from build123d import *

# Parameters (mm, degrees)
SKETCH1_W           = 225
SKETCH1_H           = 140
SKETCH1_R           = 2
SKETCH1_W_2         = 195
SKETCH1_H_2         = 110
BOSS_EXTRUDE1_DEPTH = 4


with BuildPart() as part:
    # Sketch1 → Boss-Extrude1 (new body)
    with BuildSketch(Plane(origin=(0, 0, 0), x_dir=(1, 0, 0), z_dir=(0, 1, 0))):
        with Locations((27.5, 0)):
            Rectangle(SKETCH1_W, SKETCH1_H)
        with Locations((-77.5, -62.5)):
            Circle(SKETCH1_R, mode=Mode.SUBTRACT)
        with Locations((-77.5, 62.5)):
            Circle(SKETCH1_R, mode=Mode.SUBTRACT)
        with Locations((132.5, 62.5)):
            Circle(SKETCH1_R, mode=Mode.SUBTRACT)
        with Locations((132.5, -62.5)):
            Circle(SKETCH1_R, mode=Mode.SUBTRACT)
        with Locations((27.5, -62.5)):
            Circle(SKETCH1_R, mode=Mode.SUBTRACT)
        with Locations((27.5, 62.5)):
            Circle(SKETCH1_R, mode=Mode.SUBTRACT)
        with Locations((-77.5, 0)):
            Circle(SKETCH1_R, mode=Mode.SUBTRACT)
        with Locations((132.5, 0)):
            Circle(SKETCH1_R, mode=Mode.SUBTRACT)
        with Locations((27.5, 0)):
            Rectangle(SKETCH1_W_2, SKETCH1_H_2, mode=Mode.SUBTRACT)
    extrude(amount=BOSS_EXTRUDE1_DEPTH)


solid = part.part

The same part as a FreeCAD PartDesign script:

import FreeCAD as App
import Part
import Sketcher
Q = App.Units.Quantity


def add_polygon(sketch, points):
    """Adds a closed chain of lines whose ends are joined by coincident constraints."""
    first, n = sketch.GeometryCount, len(points)
    for a, b in zip(points, points[1:] + points[:1]):
        sketch.addGeometry(Part.LineSegment(App.Vector(*a, 0), App.Vector(*b, 0)), False)
    for i in range(n):
        sketch.addConstraint(Sketcher.Constraint("Coincident", first + i, 2, first + (i + 1) % n, 1))

doc = App.newDocument("Part")
params = doc.addObject("Spreadsheet::Sheet", "Params")
for row, (alias, value) in enumerate([
    ("sketch1_diameter", "4 mm"),
    ("sketch1_width", "225 mm"),
    ("sketch1_width2", "195 mm"),
    ("sketch1_height", "140 mm"),
    ("sketch1_height2", "110 mm"),
    ("pad1_length", "4 mm"),
], start=1):
    params.set(f"A{row}", alias)
    params.set(f"B{row}", "=" + value)
    params.setAlias(f"B{row}", alias)

body = doc.addObject("PartDesign::Body", "Body")

sketch1 = body.newObject("Sketcher::SketchObject", "Sketch")
sketch1.AttachmentSupport = (doc.getObject("XZ_Plane"), [""])
sketch1.MapMode = "FlatFace"
add_polygon(sketch1, [(-85, -70), (-85, 70), (140, 70), (140, -70)])
sketch1.addGeometry(Part.Circle(App.Vector(-77.5, 62.5, 0), App.Vector(0, 0, 1), 2), False)
sketch1.addGeometry(Part.Circle(App.Vector(27.5, 62.5, 0), App.Vector(0, 0, 1), 2), False)
sketch1.addGeometry(Part.Circle(App.Vector(132.5, 62.5, 0), App.Vector(0, 0, 1), 2), False)
sketch1.addGeometry(Part.Circle(App.Vector(-77.5, 0, 0), App.Vector(0, 0, 1), 2), False)
add_polygon(sketch1, [(125, 55), (-70, 55), (-70, -55), (125, -55)])
sketch1.addGeometry(Part.Circle(App.Vector(-77.5, -62.5, 0), App.Vector(0, 0, 1), 2), False)
sketch1.addGeometry(Part.Circle(App.Vector(27.5, -62.5, 0), App.Vector(0, 0, 1), 2), False)
sketch1.addGeometry(Part.Circle(App.Vector(132.5, 0, 0), App.Vector(0, 0, 1), 2), False)
sketch1.addGeometry(Part.Circle(App.Vector(132.5, -62.5, 0), App.Vector(0, 0, 1), 2), False)
sketch1.addConstraint(Sketcher.Constraint("Vertical", 0))
sketch1.addConstraint(Sketcher.Constraint("Horizontal", 1))
sketch1.addConstraint(Sketcher.Constraint("Vertical", 2))
sketch1.addConstraint(Sketcher.Constraint("Horizontal", 3))
sketch1.addConstraint(Sketcher.Constraint("Horizontal", 8))
sketch1.addConstraint(Sketcher.Constraint("Vertical", 9))
sketch1.addConstraint(Sketcher.Constraint("Horizontal", 10))
sketch1.addConstraint(Sketcher.Constraint("Vertical", 11))
sketch1.addConstraint(Sketcher.Constraint("Equal", 4, 5))
sketch1.addConstraint(Sketcher.Constraint("Equal", 5, 6))
sketch1.addConstraint(Sketcher.Constraint("Equal", 6, 7))
sketch1.addConstraint(Sketcher.Constraint("Equal", 7, 12))
sketch1.addConstraint(Sketcher.Constraint("Equal", 12, 13))
sketch1.addConstraint(Sketcher.Constraint("Equal", 13, 14))
sketch1.addConstraint(Sketcher.Constraint("Equal", 14, 15))
sketch1.addConstraint(Sketcher.Constraint("Symmetric", 4, 3, 12, 3, -1))
sketch1.addConstraint(Sketcher.Constraint("Symmetric", 5, 3, 13, 3, -1))
sketch1.addConstraint(Sketcher.Constraint("Symmetric", 6, 3, 15, 3, -1))
sketch1.addConstraint(Sketcher.Constraint("PointOnObject", 7, 3, -1))
sketch1.addConstraint(Sketcher.Constraint("PointOnObject", 14, 3, -1))
sketch1.addConstraint(Sketcher.Constraint("Horizontal", 4, 3, 5, 3))
sketch1.addConstraint(Sketcher.Constraint("Horizontal", 5, 3, 6, 3))
sketch1.addConstraint(Sketcher.Constraint("Vertical", 4, 3, 7, 3))
sketch1.addConstraint(Sketcher.Constraint("Vertical", 6, 3, 14, 3))
sketch1.addConstraint(Sketcher.Constraint("Diameter", 4, Q("4 mm")))
sketch1.addConstraint(Sketcher.Constraint("DistanceX", 1, 1, 1, 2, Q("225 mm")))
sketch1.addConstraint(Sketcher.Constraint("DistanceX", 8, 2, 8, 1, Q("195 mm")))
sketch1.addConstraint(Sketcher.Constraint("DistanceY", 0, 1, 0, 2, Q("140 mm")))
sketch1.addConstraint(Sketcher.Constraint("DistanceY", 9, 2, 9, 1, Q("110 mm")))
sketch1.addConstraint(Sketcher.Constraint("DistanceX", 0, 2, -1, 1, Q("85 mm")))
sketch1.addConstraint(Sketcher.Constraint("DistanceY", -1, 1, 0, 2, Q("70 mm")))
sketch1.addConstraint(Sketcher.Constraint("DistanceX", 8, 2, -1, 1, Q("70 mm")))
sketch1.addConstraint(Sketcher.Constraint("DistanceY", -1, 1, 8, 2, Q("55 mm")))
sketch1.addConstraint(Sketcher.Constraint("DistanceX", 4, 3, 5, 3, Q("105 mm")))
sketch1.addConstraint(Sketcher.Constraint("DistanceX", 5, 3, 6, 3, Q("105 mm")))
sketch1.addConstraint(Sketcher.Constraint("DistanceY", 12, 3, 4, 3, Q("125 mm")))
sketch1.addConstraint(Sketcher.Constraint("DistanceX", 4, 3, -1, 1, Q("77.5 mm")))
sketch1.setExpression("Constraints[32]", "Params.sketch1_diameter")
sketch1.setExpression("Constraints[33]", "Params.sketch1_width")
sketch1.setExpression("Constraints[34]", "Params.sketch1_width2")
sketch1.setExpression("Constraints[35]", "Params.sketch1_height")
sketch1.setExpression("Constraints[36]", "Params.sketch1_height2")
pad1 = body.newObject("PartDesign::Pad", "Pad")
pad1.Profile = sketch1
pad1.setExpression("Length", "Params.pad1_length")
pad1.Reversed = True

doc.recompute()
